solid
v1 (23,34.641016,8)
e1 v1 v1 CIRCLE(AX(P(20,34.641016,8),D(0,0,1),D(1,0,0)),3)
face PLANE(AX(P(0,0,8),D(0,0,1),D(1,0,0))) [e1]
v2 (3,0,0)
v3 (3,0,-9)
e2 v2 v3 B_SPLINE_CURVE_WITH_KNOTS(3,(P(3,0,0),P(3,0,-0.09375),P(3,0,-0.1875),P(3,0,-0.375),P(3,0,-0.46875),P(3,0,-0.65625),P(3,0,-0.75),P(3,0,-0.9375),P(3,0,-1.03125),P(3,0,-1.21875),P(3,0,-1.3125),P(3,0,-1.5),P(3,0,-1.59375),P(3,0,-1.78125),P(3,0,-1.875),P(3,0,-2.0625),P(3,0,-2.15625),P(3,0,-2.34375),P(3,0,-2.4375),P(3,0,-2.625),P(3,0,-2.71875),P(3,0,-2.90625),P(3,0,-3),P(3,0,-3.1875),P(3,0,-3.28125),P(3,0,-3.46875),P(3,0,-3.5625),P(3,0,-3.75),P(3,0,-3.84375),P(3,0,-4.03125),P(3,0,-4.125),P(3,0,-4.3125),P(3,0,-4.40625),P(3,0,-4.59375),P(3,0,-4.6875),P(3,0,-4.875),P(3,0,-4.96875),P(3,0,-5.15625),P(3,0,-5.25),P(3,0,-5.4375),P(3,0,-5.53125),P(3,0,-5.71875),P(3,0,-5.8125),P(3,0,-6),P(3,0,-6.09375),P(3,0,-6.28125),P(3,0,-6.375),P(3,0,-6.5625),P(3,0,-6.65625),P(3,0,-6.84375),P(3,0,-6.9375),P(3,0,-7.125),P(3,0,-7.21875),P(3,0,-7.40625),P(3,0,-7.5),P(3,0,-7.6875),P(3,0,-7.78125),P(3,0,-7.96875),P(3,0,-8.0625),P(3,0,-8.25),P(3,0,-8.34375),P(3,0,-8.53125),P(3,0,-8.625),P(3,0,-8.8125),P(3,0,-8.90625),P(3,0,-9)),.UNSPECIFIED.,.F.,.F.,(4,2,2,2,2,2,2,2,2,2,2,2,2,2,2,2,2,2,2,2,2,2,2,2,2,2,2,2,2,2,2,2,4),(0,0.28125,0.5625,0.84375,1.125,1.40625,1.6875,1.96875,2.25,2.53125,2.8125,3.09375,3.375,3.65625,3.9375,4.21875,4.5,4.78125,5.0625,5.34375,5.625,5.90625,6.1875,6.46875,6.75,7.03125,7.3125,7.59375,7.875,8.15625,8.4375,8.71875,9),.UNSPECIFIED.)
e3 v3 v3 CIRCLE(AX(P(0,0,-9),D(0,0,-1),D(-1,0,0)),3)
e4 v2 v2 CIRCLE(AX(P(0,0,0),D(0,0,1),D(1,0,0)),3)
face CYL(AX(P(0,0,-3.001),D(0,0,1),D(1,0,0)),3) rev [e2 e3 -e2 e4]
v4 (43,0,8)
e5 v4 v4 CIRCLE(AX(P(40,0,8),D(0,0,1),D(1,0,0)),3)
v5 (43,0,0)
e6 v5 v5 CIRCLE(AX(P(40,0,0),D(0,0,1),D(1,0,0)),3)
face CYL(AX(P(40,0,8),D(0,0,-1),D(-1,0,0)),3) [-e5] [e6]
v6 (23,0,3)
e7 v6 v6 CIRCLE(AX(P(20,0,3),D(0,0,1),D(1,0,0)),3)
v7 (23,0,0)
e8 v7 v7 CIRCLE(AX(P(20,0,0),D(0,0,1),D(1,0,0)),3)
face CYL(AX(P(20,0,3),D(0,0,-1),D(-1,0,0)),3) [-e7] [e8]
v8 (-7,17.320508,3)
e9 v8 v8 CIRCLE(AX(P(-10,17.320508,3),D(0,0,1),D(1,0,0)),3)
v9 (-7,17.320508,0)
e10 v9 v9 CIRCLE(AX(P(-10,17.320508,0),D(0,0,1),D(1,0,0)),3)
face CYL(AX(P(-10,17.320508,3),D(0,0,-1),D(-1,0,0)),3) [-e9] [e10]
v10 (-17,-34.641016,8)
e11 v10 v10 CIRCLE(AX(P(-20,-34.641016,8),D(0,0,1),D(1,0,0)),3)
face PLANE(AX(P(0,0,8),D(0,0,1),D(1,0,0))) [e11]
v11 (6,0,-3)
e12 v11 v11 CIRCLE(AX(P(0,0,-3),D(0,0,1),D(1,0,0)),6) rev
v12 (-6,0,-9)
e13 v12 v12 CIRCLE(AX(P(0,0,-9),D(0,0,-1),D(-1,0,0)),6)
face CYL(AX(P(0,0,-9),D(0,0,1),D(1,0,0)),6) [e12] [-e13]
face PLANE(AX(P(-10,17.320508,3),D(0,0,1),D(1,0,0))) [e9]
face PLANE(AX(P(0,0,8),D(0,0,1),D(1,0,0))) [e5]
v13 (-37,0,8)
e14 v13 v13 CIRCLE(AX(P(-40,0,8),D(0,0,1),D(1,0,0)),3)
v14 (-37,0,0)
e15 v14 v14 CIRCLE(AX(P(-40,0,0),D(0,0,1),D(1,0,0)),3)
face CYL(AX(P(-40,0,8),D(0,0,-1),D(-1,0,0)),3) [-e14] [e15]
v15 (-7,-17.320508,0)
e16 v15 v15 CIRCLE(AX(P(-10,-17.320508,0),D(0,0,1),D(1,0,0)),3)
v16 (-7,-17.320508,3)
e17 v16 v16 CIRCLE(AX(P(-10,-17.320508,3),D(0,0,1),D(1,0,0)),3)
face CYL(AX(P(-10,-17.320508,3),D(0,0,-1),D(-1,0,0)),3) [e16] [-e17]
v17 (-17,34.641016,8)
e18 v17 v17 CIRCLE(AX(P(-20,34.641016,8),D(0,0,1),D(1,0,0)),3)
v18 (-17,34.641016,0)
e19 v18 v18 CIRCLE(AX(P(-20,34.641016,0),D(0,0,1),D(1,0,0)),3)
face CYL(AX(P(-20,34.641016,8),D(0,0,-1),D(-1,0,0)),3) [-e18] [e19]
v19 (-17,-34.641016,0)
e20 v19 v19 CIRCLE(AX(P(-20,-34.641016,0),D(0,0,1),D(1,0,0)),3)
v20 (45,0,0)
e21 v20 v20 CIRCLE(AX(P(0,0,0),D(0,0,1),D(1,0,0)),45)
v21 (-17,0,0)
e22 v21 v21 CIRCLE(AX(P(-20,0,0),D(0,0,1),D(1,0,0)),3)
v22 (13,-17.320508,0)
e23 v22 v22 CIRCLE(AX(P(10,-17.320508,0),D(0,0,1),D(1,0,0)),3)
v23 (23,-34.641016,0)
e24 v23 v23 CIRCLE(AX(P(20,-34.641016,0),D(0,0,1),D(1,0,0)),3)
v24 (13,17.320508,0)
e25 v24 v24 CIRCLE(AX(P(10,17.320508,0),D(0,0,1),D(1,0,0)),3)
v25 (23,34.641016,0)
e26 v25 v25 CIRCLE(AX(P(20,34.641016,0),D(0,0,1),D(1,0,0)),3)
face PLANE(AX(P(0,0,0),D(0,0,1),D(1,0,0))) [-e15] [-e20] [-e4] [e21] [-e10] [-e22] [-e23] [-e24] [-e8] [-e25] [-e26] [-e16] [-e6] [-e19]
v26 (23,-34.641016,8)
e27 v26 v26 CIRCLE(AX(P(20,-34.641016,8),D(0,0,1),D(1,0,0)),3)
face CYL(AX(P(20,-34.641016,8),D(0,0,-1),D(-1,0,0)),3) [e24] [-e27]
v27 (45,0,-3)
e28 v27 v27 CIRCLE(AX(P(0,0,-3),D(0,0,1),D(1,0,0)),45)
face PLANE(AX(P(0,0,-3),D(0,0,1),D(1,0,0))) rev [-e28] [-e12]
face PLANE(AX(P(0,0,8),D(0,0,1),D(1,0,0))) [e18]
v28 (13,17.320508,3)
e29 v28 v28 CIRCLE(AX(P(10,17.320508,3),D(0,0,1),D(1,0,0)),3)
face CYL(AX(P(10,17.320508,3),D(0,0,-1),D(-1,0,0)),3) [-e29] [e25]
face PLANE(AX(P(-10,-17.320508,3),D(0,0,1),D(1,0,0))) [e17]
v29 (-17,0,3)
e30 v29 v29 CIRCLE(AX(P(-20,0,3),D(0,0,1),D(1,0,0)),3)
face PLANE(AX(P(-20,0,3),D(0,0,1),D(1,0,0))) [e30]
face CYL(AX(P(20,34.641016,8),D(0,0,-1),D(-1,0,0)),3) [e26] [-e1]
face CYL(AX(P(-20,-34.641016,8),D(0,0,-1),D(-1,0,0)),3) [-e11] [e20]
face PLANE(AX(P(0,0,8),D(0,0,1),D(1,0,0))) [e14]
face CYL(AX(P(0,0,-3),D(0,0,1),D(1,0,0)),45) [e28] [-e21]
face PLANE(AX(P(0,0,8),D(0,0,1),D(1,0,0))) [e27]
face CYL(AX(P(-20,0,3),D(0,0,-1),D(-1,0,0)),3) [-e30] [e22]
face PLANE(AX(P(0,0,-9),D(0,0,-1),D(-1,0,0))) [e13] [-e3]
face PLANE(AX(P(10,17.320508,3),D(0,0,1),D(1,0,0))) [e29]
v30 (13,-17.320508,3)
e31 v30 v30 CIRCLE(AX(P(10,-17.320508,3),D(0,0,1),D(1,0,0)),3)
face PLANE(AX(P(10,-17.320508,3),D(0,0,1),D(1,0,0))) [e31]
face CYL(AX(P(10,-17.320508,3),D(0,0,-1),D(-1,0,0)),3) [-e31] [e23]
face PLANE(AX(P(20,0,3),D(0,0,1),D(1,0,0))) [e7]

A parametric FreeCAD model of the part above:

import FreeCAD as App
import Part
import Sketcher

doc = App.newDocument("Part")
body = doc.addObject("PartDesign::Body", "Body")

# Sketch on XY plane
sketch1 = body.newObject("Sketcher::SketchObject", "Sketch")
sketch1.AttachmentSupport = (doc.getObject("XY_Plane"), [""])
sketch1.MapMode = "FlatFace"
sketch1.addGeometry(Part.Circle(App.Vector(0, 0, 0), App.Vector(0, 0, 1), 45), False)
sketch1.addConstraint(Sketcher.Constraint("Coincident", 0, 3, -1, 1))
sketch1.addConstraint(Sketcher.Constraint("Diameter", 0, 90.0))
pad1 = body.newObject("PartDesign::Pad", "Pad")
pad1.Profile = sketch1
pad1.Length = 3
pad1.Reversed = True

# Sketch on XY plane
sketch2 = body.newObject("Sketcher::SketchObject", "Sketch001")
sketch2.AttachmentSupport = (doc.getObject("XY_Plane"), [""])
sketch2.MapMode = "FlatFace"
sketch2.addGeometry(Part.Circle(App.Vector(-40, 0, 0), App.Vector(0, 0, 1), 3), False)
sketch2.addGeometry(Part.Circle(App.Vector(-20, 34.6, 0), App.Vector(0, 0, 1), 3), False)
sketch2.addGeometry(Part.Circle(App.Vector(20, 34.6, 0), App.Vector(0, 0, 1), 3), False)
sketch2.addGeometry(Part.Circle(App.Vector(40, 0, 0), App.Vector(0, 0, 1), 3), False)
sketch2.addGeometry(Part.Circle(App.Vector(20, -34.6, 0), App.Vector(0, 0, 1), 3), False)
sketch2.addGeometry(Part.Circle(App.Vector(-20, -34.6, 0), App.Vector(0, 0, 1), 3), False)
sketch2.addConstraint(Sketcher.Constraint("Equal", 0, 1))
sketch2.addConstraint(Sketcher.Constraint("Equal", 1, 2))
sketch2.addConstraint(Sketcher.Constraint("Equal", 2, 3))
sketch2.addConstraint(Sketcher.Constraint("Equal", 3, 4))
sketch2.addConstraint(Sketcher.Constraint("Equal", 4, 5))
sketch2.addConstraint(Sketcher.Constraint("Symmetric", 0, 3, 3, 3, -1, 1))
sketch2.addConstraint(Sketcher.Constraint("Symmetric", 1, 3, 4, 3, -1, 1))
sketch2.addConstraint(Sketcher.Constraint("Symmetric", 2, 3, 5, 3, -1, 1))
sketch2.addConstraint(Sketcher.Constraint("Symmetric", 1, 3, 2, 3, -2))
sketch2.addConstraint(Sketcher.Constraint("PointOnObject", 0, 3, -1))
sketch2.addConstraint(Sketcher.Constraint("Diameter", 0, 6.0))
sketch2.addConstraint(Sketcher.Constraint("DistanceX", 0, 3, -1, 1, 40.0))
sketch2.addConstraint(Sketcher.Constraint("DistanceX", 1, 3, -1, 1, 20.0))
sketch2.addConstraint(Sketcher.Constraint("DistanceY", -1, 1, 1, 3, 34.641016))
pad2 = body.newObject("PartDesign::Pad", "Pad001")
pad2.Profile = sketch2
pad2.Length = 8

# Sketch on XY plane
sketch3 = body.newObject("Sketcher::SketchObject", "Sketch002")
sketch3.AttachmentSupport = (doc.getObject("XY_Plane"), [""])
sketch3.MapMode = "FlatFace"
sketch3.addGeometry(Part.Circle(App.Vector(-10, 17.3, 0), App.Vector(0, 0, 1), 3), False)
sketch3.addGeometry(Part.Circle(App.Vector(10, 17.3, 0), App.Vector(0, 0, 1), 3), False)
sketch3.addGeometry(Part.Circle(App.Vector(20, 0, 0), App.Vector(0, 0, 1), 3), False)
sketch3.addGeometry(Part.Circle(App.Vector(10, -17.3, 0), App.Vector(0, 0, 1), 3), False)
sketch3.addGeometry(Part.Circle(App.Vector(-10, -17.3, 0), App.Vector(0, 0, 1), 3), False)
sketch3.addGeometry(Part.Circle(App.Vector(-20, 0, 0), App.Vector(0, 0, 1), 3), False)
sketch3.addConstraint(Sketcher.Constraint("Equal", 0, 1))
sketch3.addConstraint(Sketcher.Constraint("Equal", 1, 2))
sketch3.addConstraint(Sketcher.Constraint("Equal", 2, 3))
sketch3.addConstraint(Sketcher.Constraint("Equal", 3, 4))
sketch3.addConstraint(Sketcher.Constraint("Equal", 4, 5))
sketch3.addConstraint(Sketcher.Constraint("Symmetric", 0, 3, 3, 3, -1, 1))
sketch3.addConstraint(Sketcher.Constraint("Symmetric", 1, 3, 4, 3, -1, 1))
sketch3.addConstraint(Sketcher.Constraint("Symmetric", 2, 3, 5, 3, -1, 1))
sketch3.addConstraint(Sketcher.Constraint("Symmetric", 0, 3, 1, 3, -2))
sketch3.addConstraint(Sketcher.Constraint("PointOnObject", 2, 3, -1))
sketch3.addConstraint(Sketcher.Constraint("Diameter", 0, 6.0))
sketch3.addConstraint(Sketcher.Constraint("DistanceX", 0, 3, -1, 1, 10.0))
sketch3.addConstraint(Sketcher.Constraint("DistanceX", -1, 1, 2, 3, 20.0))
sketch3.addConstraint(Sketcher.Constraint("DistanceY", -1, 1, 0, 3, 17.320508))
pad3 = body.newObject("PartDesign::Pad", "Pad002")
pad3.Profile = sketch3
pad3.Length = 3

# Sketch on XY plane
sketch4 = body.newObject("Sketcher::SketchObject", "Sketch003")
sketch4.AttachmentSupport = (doc.getObject("XY_Plane"), [""])
sketch4.MapMode = "FlatFace"
sketch4.addGeometry(Part.Circle(App.Vector(0, 0, 0), App.Vector(0, 0, 1), 3), False)
sketch4.addConstraint(Sketcher.Constraint("Coincident", 0, 3, -1, 1))
sketch4.addConstraint(Sketcher.Constraint("Diameter", 0, 6.0))
pocket1 = body.newObject("PartDesign::Pocket", "Pocket")
pocket1.Profile = sketch4
pocket1.Type = "UpToFirst"

# Sketch on XY plane
sketch5 = body.newObject("Sketcher::SketchObject", "Sketch004")
sketch5.AttachmentSupport = (doc.getObject("XY_Plane"), [""])
sketch5.MapMode = "FlatFace"
sketch5.AttachmentOffset = App.Placement(App.Vector(0, 0, -3), App.Rotation())
sketch5.addGeometry(Part.Circle(App.Vector(0, 0, 0), App.Vector(0, 0, 1), 6), False)
sketch5.addGeometry(Part.Circle(App.Vector(0, 0, 0), App.Vector(0, 0, 1), 3), False)
sketch5.addConstraint(Sketcher.Constraint("Coincident", 0, 3, -1, 1))
sketch5.addConstraint(Sketcher.Constraint("Coincident", 1, 3, -1, 1))
sketch5.addConstraint(Sketcher.Constraint("Diameter", 0, 12.0))
sketch5.addConstraint(Sketcher.Constraint("Diameter", 1, 6.0))
pad4 = body.newObject("PartDesign::Pad", "Pad003")
pad4.Profile = sketch5
pad4.Length = 6
pad4.Reversed = True

doc.recompute()
